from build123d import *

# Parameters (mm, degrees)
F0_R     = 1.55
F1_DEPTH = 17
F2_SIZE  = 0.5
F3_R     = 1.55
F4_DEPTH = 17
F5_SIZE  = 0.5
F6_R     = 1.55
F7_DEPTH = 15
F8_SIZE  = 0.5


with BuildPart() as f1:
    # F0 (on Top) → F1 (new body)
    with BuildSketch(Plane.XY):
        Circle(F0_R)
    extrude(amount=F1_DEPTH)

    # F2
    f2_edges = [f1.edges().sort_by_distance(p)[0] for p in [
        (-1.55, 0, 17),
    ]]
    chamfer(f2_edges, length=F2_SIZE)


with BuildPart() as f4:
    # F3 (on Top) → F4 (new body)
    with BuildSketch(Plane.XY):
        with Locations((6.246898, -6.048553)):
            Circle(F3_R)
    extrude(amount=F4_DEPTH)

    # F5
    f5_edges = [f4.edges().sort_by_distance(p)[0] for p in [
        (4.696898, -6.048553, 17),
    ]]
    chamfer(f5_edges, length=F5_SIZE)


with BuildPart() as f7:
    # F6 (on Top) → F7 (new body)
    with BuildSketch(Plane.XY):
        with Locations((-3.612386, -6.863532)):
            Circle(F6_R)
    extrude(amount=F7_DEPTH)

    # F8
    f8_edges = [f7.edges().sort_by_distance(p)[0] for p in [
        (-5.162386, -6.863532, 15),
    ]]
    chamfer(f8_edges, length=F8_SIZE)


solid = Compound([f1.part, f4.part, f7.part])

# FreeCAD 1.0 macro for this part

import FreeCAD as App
import Part
import Sketcher
from FreeCAD import Vector
Q = App.Units.Quantity


def edges_at(feature, points):
    """Names of the edges that pass closest to the given points."""
    edges = feature.Shape.Edges
    near = lambda p: min(range(len(edges)), key=lambda i: edges[i].distToShape(Part.Vertex(*p))[0])
    return sorted({f"Edge{near(p) + 1}" for p in points})

doc = App.newDocument("Part")
body = doc.addObject("PartDesign::Body", "Body")

# Sketch on XY plane
sketch1 = body.newObject("Sketcher::SketchObject", "Sketch")
sketch1.AttachmentSupport = (doc.getObject("XY_Plane"), [""])
sketch1.MapMode = "FlatFace"
sketch1.addGeometry(Part.Circle(Vector(0, 0, 0), Vector(0, 0, 1), 1.6), False)
sketch1.addConstraint(Sketcher.Constraint("Coincident", 0, 3, -1, 1))
sketch1.addConstraint(Sketcher.Constraint("Diameter", 0, Q("3.1 mm")))
pad1 = body.newObject("PartDesign::Pad", "Pad")
pad1.Profile = sketch1
pad1.Length = 17
doc.recompute()

chamfer = body.newObject("PartDesign::Chamfer", "Chamfer")
chamfer.Base = (pad1, edges_at(pad1, [(-1.55, 0, 17)]))
chamfer.Size = 0.5
body2 = doc.addObject("PartDesign::Body", "Body001")

# Sketch on XY plane
sketch2 = body2.newObject("Sketcher::SketchObject", "Sketch001")
sketch2.AttachmentSupport = (doc.getObject("XY_Plane001"), [""])
sketch2.MapMode = "FlatFace"
sketch2.addGeometry(Part.Circle(Vector(6.2, -6, 0), Vector(0, 0, 1), 1.6), False)
sketch2.addConstraint(Sketcher.Constraint("Diameter", 0, Q("3.1 mm")))
sketch2.addConstraint(Sketcher.Constraint("DistanceX", -1, 1, 0, 3, Q("6.246898 mm")))
sketch2.addConstraint(Sketcher.Constraint("DistanceY", 0, 3, -1, 1, Q("6.048553 mm")))
pad2 = body2.newObject("PartDesign::Pad", "Pad001")
pad2.Profile = sketch2
pad2.Length = 17
doc.recompute()

chamfer2 = body2.newObject("PartDesign::Chamfer", "Chamfer001")
chamfer2.Base = (pad2, edges_at(pad2, [(4.697, -6.049, 17)]))
chamfer2.Size = 0.5
body3 = doc.addObject("PartDesign::Body", "Body002")

# Sketch on XY plane
sketch3 = body3.newObject("Sketcher::SketchObject", "Sketch002")
sketch3.AttachmentSupport = (doc.getObject("XY_Plane002"), [""])
sketch3.MapMode = "FlatFace"
sketch3.addGeometry(Part.Circle(Vector(-3.6, -6.9, 0), Vector(0, 0, 1), 1.6), False)
sketch3.addConstraint(Sketcher.Constraint("Diameter", 0, Q("3.1 mm")))
sketch3.addConstraint(Sketcher.Constraint("DistanceX", 0, 3, -1, 1, Q("3.612386 mm")))
sketch3.addConstraint(Sketcher.Constraint("DistanceY", 0, 3, -1, 1, Q("6.863532 mm")))
pad3 = body3.newObject("PartDesign::Pad", "Pad002")
pad3.Profile = sketch3
pad3.Length = 15
doc.recompute()

chamfer3 = body3.newObject("PartDesign::Chamfer", "Chamfer002")
chamfer3.Base = (pad3, edges_at(pad3, [(-5.162, -6.864, 15)]))
chamfer3.Size = 0.5

doc.recompute()
